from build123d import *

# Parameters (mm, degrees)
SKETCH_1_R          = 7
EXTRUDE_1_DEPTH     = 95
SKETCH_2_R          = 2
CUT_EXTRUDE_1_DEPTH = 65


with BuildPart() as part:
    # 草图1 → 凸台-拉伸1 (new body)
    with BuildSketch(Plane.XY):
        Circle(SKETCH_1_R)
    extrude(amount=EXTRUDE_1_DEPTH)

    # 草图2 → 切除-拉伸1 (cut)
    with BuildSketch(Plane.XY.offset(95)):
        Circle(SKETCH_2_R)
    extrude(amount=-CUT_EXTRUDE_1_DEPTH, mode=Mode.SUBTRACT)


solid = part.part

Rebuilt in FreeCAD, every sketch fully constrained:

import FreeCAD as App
import Part
import Sketcher
from FreeCAD import Vector
Q = App.Units.Quantity

doc = App.newDocument("Part")
body = doc.addObject("PartDesign::Body", "Body")

# Sketch on XY plane
sketch1 = body.newObject("Sketcher::SketchObject", "Sketch")
sketch1.AttachmentSupport = (doc.getObject("XY_Plane"), [""])
sketch1.MapMode = "FlatFace"
sketch1.addGeometry(Part.Circle(Vector(0, 0, 0), Vector(0, 0, 1), 7), False)
sketch1.addConstraint(Sketcher.Constraint("Coincident", 0, 3, -1, 1))
sketch1.addConstraint(Sketcher.Constraint("Diameter", 0, Q("14 mm")))
pad1 = body.newObject("PartDesign::Pad", "Pad")
pad1.Profile = sketch1
pad1.Length = 95

# Sketch on XY plane
sketch2 = body.newObject("Sketcher::SketchObject", "Sketch001")
sketch2.AttachmentSupport = (doc.getObject("XY_Plane"), [""])
sketch2.MapMode = "FlatFace"
sketch2.AttachmentOffset = App.Placement(Vector(0, 0, 95), App.Rotation())
sketch2.addGeometry(Part.Circle(Vector(0, 0, 0), Vector(0, 0, 1), 2), False)
sketch2.addConstraint(Sketcher.Constraint("Coincident", 0, 3, -1, 1))
sketch2.addConstraint(Sketcher.Constraint("Diameter", 0, Q("4 mm")))
pocket1 = body.newObject("PartDesign::Pocket", "Pocket")
pocket1.Profile = sketch2
pocket1.Length = 65

doc.recompute()
